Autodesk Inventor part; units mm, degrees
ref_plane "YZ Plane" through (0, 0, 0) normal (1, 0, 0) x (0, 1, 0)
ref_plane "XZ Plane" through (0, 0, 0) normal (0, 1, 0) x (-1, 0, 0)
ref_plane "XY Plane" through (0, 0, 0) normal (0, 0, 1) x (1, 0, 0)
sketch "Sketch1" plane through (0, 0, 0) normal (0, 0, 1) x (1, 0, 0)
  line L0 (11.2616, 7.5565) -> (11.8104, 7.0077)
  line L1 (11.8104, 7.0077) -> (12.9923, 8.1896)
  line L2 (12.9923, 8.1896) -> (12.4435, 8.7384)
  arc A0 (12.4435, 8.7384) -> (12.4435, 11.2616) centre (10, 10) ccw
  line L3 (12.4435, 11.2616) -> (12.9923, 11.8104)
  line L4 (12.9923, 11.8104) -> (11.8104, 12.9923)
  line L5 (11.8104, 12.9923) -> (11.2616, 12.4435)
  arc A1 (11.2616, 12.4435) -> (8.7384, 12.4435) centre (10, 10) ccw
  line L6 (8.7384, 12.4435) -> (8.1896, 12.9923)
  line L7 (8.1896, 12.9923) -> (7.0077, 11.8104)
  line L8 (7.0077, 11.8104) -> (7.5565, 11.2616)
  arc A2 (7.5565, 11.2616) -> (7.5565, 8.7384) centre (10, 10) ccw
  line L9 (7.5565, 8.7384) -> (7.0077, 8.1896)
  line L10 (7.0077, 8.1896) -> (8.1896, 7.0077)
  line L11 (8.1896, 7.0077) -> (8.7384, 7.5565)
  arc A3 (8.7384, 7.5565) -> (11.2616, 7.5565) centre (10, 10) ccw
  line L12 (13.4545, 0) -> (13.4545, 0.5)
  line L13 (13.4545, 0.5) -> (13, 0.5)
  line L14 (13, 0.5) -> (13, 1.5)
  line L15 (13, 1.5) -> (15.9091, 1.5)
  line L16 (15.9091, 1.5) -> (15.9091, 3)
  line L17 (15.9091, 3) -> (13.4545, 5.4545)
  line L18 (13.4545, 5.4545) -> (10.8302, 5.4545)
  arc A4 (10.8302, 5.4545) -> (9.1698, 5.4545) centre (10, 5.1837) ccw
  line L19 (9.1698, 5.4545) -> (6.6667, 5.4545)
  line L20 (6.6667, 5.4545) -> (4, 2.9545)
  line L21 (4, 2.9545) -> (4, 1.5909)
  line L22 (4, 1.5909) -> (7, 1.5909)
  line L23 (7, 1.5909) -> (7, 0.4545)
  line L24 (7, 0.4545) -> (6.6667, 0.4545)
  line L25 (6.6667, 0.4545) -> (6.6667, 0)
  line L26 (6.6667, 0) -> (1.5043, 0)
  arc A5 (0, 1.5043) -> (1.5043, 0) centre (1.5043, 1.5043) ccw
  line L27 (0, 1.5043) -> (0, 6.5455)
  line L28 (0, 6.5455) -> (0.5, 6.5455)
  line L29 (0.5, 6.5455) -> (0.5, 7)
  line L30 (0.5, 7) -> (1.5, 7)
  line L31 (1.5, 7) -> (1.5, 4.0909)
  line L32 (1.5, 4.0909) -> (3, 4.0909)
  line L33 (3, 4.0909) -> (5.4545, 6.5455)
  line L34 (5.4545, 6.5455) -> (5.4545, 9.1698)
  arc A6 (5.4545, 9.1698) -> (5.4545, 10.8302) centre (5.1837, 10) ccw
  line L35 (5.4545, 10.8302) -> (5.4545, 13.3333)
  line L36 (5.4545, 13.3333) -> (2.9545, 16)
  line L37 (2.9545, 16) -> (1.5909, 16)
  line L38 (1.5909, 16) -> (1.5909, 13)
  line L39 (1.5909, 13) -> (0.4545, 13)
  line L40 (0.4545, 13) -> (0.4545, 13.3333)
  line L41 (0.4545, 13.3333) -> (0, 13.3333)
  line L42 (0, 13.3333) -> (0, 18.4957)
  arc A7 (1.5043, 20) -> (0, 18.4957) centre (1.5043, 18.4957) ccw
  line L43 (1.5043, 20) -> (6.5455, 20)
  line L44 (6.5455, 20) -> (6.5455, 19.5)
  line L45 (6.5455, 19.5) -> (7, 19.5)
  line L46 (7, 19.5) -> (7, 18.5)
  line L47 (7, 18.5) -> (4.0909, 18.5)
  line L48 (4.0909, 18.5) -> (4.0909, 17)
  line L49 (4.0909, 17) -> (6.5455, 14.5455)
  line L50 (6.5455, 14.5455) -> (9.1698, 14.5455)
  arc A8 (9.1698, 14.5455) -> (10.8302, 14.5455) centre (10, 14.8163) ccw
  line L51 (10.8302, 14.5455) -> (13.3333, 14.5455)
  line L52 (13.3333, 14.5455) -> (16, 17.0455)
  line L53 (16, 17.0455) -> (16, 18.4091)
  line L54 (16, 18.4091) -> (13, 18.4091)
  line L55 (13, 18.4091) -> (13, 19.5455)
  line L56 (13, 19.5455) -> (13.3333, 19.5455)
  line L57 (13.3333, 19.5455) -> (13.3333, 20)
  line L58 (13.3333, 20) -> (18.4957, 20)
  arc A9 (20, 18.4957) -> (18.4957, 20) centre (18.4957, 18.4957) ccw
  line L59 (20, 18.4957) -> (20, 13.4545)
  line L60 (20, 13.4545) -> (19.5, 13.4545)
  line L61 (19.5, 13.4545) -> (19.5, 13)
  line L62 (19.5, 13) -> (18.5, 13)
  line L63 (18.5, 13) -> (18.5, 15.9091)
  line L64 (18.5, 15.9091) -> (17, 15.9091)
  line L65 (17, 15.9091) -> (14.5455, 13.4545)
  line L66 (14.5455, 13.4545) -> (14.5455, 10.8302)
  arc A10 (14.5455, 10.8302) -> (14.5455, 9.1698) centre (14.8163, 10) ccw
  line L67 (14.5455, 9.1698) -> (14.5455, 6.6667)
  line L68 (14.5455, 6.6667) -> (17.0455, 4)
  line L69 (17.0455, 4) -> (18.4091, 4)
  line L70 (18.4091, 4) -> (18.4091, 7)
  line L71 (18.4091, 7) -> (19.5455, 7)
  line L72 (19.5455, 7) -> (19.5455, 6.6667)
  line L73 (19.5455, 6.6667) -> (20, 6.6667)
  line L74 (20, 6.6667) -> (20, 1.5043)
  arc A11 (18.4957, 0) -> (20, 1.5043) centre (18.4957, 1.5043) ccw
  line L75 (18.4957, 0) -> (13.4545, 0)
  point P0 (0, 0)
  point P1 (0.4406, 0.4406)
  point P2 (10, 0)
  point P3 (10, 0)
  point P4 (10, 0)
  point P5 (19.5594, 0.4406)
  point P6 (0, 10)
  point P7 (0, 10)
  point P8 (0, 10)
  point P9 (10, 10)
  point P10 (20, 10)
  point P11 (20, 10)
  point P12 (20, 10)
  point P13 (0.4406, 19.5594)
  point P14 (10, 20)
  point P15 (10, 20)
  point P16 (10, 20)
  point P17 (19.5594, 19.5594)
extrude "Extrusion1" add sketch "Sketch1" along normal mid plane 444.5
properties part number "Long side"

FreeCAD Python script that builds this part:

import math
import FreeCAD as App
import Part
import Sketcher
from FreeCAD import Vector
Q = App.Units.Quantity

doc = App.newDocument("Part")
body = doc.addObject("PartDesign::Body", "Body")

# Sketch on XY plane
sketch1 = body.newObject("Sketcher::SketchObject", "Sketch")
sketch1.AttachmentSupport = (doc.getObject("XY_Plane"), [""])
sketch1.MapMode = "FlatFace"
sketch1.addGeometry([
    Part.LineSegment(Vector(13.45, 0.5, 0), Vector(13.45, 0, 0)),  # 0
    Part.LineSegment(Vector(13.45, 0, 0), Vector(18.5, 0, 0)),  # 1
    Part.ArcOfCircle(Part.Circle(Vector(18.5, 1.5, 0), Vector(0, 0, 1), 1.5), math.radians(-90), math.radians(0)),  # 2
    Part.LineSegment(Vector(20, 1.5, 0), Vector(20, 6.67, 0)),  # 3
    Part.LineSegment(Vector(20, 6.67, 0), Vector(19.55, 6.67, 0)),  # 4
    Part.LineSegment(Vector(19.55, 6.67, 0), Vector(19.55, 7, 0)),  # 5
    Part.LineSegment(Vector(19.55, 7, 0), Vector(18.41, 7, 0)),  # 6
    Part.LineSegment(Vector(18.41, 7, 0), Vector(18.41, 4, 0)),  # 7
    Part.LineSegment(Vector(18.41, 4, 0), Vector(17.05, 4, 0)),  # 8
    Part.LineSegment(Vector(17.05, 4, 0), Vector(14.55, 6.67, 0)),  # 9
    Part.LineSegment(Vector(14.55, 6.67, 0), Vector(14.55, 9.17, 0)),  # 10
    Part.ArcOfCircle(Part.Circle(Vector(14.82, 10, 0), Vector(0, 0, 1), 0.87), math.radians(108), math.radians(252)),  # 11
    Part.LineSegment(Vector(14.55, 10.83, 0), Vector(14.55, 13.45, 0)),  # 12
    Part.LineSegment(Vector(14.55, 13.45, 0), Vector(17, 15.91, 0)),  # 13
    Part.LineSegment(Vector(17, 15.91, 0), Vector(18.5, 15.91, 0)),  # 14
    Part.LineSegment(Vector(18.5, 15.91, 0), Vector(18.5, 13, 0)),  # 15
    Part.LineSegment(Vector(18.5, 13, 0), Vector(19.5, 13, 0)),  # 16
    Part.LineSegment(Vector(19.5, 13, 0), Vector(19.5, 13.45, 0)),  # 17
    Part.LineSegment(Vector(19.5, 13.45, 0), Vector(20, 13.45, 0)),  # 18
    Part.LineSegment(Vector(20, 13.45, 0), Vector(20, 18.5, 0)),  # 19
    Part.ArcOfCircle(Part.Circle(Vector(18.5, 18.5, 0), Vector(0, 0, 1), 1.5), math.radians(0), math.radians(90)),  # 20
    Part.LineSegment(Vector(18.5, 20, 0), Vector(13.33, 20, 0)),  # 21
    Part.LineSegment(Vector(13.33, 20, 0), Vector(13.33, 19.55, 0)),  # 22
    Part.LineSegment(Vector(13.33, 19.55, 0), Vector(13, 19.55, 0)),  # 23
    Part.LineSegment(Vector(13, 19.55, 0), Vector(13, 18.41, 0)),  # 24
    Part.LineSegment(Vector(13, 18.41, 0), Vector(16, 18.41, 0)),  # 25
    Part.LineSegment(Vector(16, 18.41, 0), Vector(16, 17.05, 0)),  # 26
    Part.LineSegment(Vector(16, 17.05, 0), Vector(13.33, 14.55, 0)),  # 27
    Part.LineSegment(Vector(13.33, 14.55, 0), Vector(10.83, 14.55, 0)),  # 28
    Part.ArcOfCircle(Part.Circle(Vector(10, 14.82, 0), Vector(0, 0, 1), 0.87), math.radians(-162), math.radians(-18)),  # 29
    Part.LineSegment(Vector(9.17, 14.55, 0), Vector(6.55, 14.55, 0)),  # 30
    Part.LineSegment(Vector(6.55, 14.55, 0), Vector(4.09, 17, 0)),  # 31
    Part.LineSegment(Vector(4.09, 17, 0), Vector(4.09, 18.5, 0)),  # 32
    Part.LineSegment(Vector(4.09, 18.5, 0), Vector(7, 18.5, 0)),  # 33
    Part.LineSegment(Vector(7, 18.5, 0), Vector(7, 19.5, 0)),  # 34
    Part.LineSegment(Vector(7, 19.5, 0), Vector(6.55, 19.5, 0)),  # 35
    Part.LineSegment(Vector(6.55, 19.5, 0), Vector(6.55, 20, 0)),  # 36
    Part.LineSegment(Vector(6.55, 20, 0), Vector(1.5, 20, 0)),  # 37
    Part.ArcOfCircle(Part.Circle(Vector(1.5, 18.5, 0), Vector(0, 0, 1), 1.5), math.radians(90), math.radians(180)),  # 38
    Part.LineSegment(Vector(0, 18.5, 0), Vector(0, 13.33, 0)),  # 39
    Part.LineSegment(Vector(0, 13.33, 0), Vector(0.45, 13.33, 0)),  # 40
    Part.LineSegment(Vector(0.45, 13.33, 0), Vector(0.45, 13, 0)),  # 41
    Part.LineSegment(Vector(0.45, 13, 0), Vector(1.59, 13, 0)),  # 42
    Part.LineSegment(Vector(1.59, 13, 0), Vector(1.59, 16, 0)),  # 43
    Part.LineSegment(Vector(1.59, 16, 0), Vector(2.95, 16, 0)),  # 44
    Part.LineSegment(Vector(2.95, 16, 0), Vector(5.45, 13.33, 0)),  # 45
    Part.LineSegment(Vector(5.45, 13.33, 0), Vector(5.45, 10.83, 0)),  # 46
    Part.ArcOfCircle(Part.Circle(Vector(5.18, 10, 0), Vector(0, 0, 1), 0.87), math.radians(-72), math.radians(72)),  # 47
    Part.LineSegment(Vector(5.45, 9.17, 0), Vector(5.45, 6.55, 0)),  # 48
    Part.LineSegment(Vector(5.45, 6.55, 0), Vector(3, 4.09, 0)),  # 49
    Part.LineSegment(Vector(3, 4.09, 0), Vector(1.5, 4.09, 0)),  # 50
    Part.LineSegment(Vector(1.5, 4.09, 0), Vector(1.5, 7, 0)),  # 51
    Part.LineSegment(Vector(1.5, 7, 0), Vector(0.5, 7, 0)),  # 52
    Part.LineSegment(Vector(0.5, 7, 0), Vector(0.5, 6.55, 0)),  # 53
    Part.LineSegment(Vector(0.5, 6.55, 0), Vector(0, 6.55, 0)),  # 54
    Part.LineSegment(Vector(0, 6.55, 0), Vector(0, 1.5, 0)),  # 55
    Part.ArcOfCircle(Part.Circle(Vector(1.5, 1.5, 0), Vector(0, 0, 1), 1.5), math.radians(180), math.radians(270)),  # 56
    Part.LineSegment(Vector(1.5, 0, 0), Vector(6.67, 0, 0)),  # 57
    Part.LineSegment(Vector(6.67, 0, 0), Vector(6.67, 0.45, 0)),  # 58
    Part.LineSegment(Vector(6.67, 0.45, 0), Vector(7, 0.45, 0)),  # 59
    Part.LineSegment(Vector(7, 0.45, 0), Vector(7, 1.59, 0)),  # 60
    Part.LineSegment(Vector(7, 1.59, 0), Vector(4, 1.59, 0)),  # 61
    Part.LineSegment(Vector(4, 1.59, 0), Vector(4, 2.95, 0)),  # 62
    Part.LineSegment(Vector(4, 2.95, 0), Vector(6.67, 5.45, 0)),  # 63
    Part.LineSegment(Vector(6.67, 5.45, 0), Vector(9.17, 5.45, 0)),  # 64
    Part.ArcOfCircle(Part.Circle(Vector(10, 5.18, 0), Vector(0, 0, 1), 0.87), math.radians(18), math.radians(162)),  # 65
    Part.LineSegment(Vector(10.83, 5.45, 0), Vector(13.45, 5.45, 0)),  # 66
    Part.LineSegment(Vector(13.45, 5.45, 0), Vector(15.91, 3, 0)),  # 67
    Part.LineSegment(Vector(15.91, 3, 0), Vector(15.91, 1.5, 0)),  # 68
    Part.LineSegment(Vector(15.91, 1.5, 0), Vector(13, 1.5, 0)),  # 69
    Part.LineSegment(Vector(13, 1.5, 0), Vector(13, 0.5, 0)),  # 70
    Part.LineSegment(Vector(13, 0.5, 0), Vector(13.45, 0.5, 0)),  # 71
    Part.LineSegment(Vector(11.81, 7.01, 0), Vector(11.26, 7.56, 0)),  # 72
    Part.ArcOfCircle(Part.Circle(Vector(10, 10, 0), Vector(0, 0, 1), 2.75), math.radians(-117), math.radians(-63)),  # 73
    Part.LineSegment(Vector(8.74, 7.56, 0), Vector(8.19, 7.01, 0)),  # 74
    Part.LineSegment(Vector(8.19, 7.01, 0), Vector(7.01, 8.19, 0)),  # 75
    Part.LineSegment(Vector(7.01, 8.19, 0), Vector(7.56, 8.74, 0)),  # 76
    Part.ArcOfCircle(Part.Circle(Vector(10, 10, 0), Vector(0, 0, 1), 2.75), math.radians(153), math.radians(207)),  # 77
    Part.LineSegment(Vector(7.56, 11.26, 0), Vector(7.01, 11.81, 0)),  # 78
    Part.LineSegment(Vector(7.01, 11.81, 0), Vector(8.19, 12.99, 0)),  # 79
    Part.LineSegment(Vector(8.19, 12.99, 0), Vector(8.74, 12.44, 0)),  # 80
    Part.ArcOfCircle(Part.Circle(Vector(10, 10, 0), Vector(0, 0, 1), 2.75), math.radians(63), math.radians(117)),  # 81
    Part.LineSegment(Vector(11.26, 12.44, 0), Vector(11.81, 12.99, 0)),  # 82
    Part.LineSegment(Vector(11.81, 12.99, 0), Vector(12.99, 11.81, 0)),  # 83
    Part.LineSegment(Vector(12.99, 11.81, 0), Vector(12.44, 11.26, 0)),  # 84
    Part.ArcOfCircle(Part.Circle(Vector(10, 10, 0), Vector(0, 0, 1), 2.75), math.radians(-27), math.radians(27)),  # 85
    Part.LineSegment(Vector(12.44, 8.74, 0), Vector(12.99, 8.19, 0)),  # 86
    Part.LineSegment(Vector(12.99, 8.19, 0), Vector(11.81, 7.01, 0)),  # 87
], False)
sketch1.addConstraint([
    Sketcher.Constraint("Coincident", 0, 2, 1, 1),
    Sketcher.Constraint("Tangent", 1, 2, 2, 1),
    Sketcher.Constraint("Tangent", 2, 2, 3, 1),
    Sketcher.Constraint("Coincident", 3, 2, 4, 1),
    Sketcher.Constraint("Coincident", 4, 2, 5, 1),
    Sketcher.Constraint("Coincident", 5, 2, 6, 1),
    Sketcher.Constraint("Coincident", 6, 2, 7, 1),
    Sketcher.Constraint("Coincident", 7, 2, 8, 1),
    Sketcher.Constraint("Coincident", 8, 2, 9, 1),
    Sketcher.Constraint("Coincident", 9, 2, 10, 1),
    Sketcher.Constraint("Coincident", 10, 2, 11, 2),
    Sketcher.Constraint("Coincident", 11, 1, 12, 1),
    Sketcher.Constraint("Coincident", 12, 2, 13, 1),
    Sketcher.Constraint("Coincident", 13, 2, 14, 1),
    Sketcher.Constraint("Coincident", 14, 2, 15, 1),
    Sketcher.Constraint("Coincident", 15, 2, 16, 1),
    Sketcher.Constraint("Coincident", 16, 2, 17, 1),
    Sketcher.Constraint("Coincident", 17, 2, 18, 1),
    Sketcher.Constraint("Coincident", 18, 2, 19, 1),
    Sketcher.Constraint("Tangent", 19, 2, 20, 1),
    Sketcher.Constraint("Tangent", 20, 2, 21, 1),
    Sketcher.Constraint("Coincident", 21, 2, 22, 1),
    Sketcher.Constraint("Coincident", 22, 2, 23, 1),
    Sketcher.Constraint("Coincident", 23, 2, 24, 1),
    Sketcher.Constraint("Coincident", 24, 2, 25, 1),
    Sketcher.Constraint("Coincident", 25, 2, 26, 1),
    Sketcher.Constraint("Coincident", 26, 2, 27, 1),
    Sketcher.Constraint("Coincident", 27, 2, 28, 1),
    Sketcher.Constraint("Coincident", 28, 2, 29, 2),
    Sketcher.Constraint("Coincident", 29, 1, 30, 1),
    Sketcher.Constraint("Coincident", 30, 2, 31, 1),
    Sketcher.Constraint("Coincident", 31, 2, 32, 1),
    Sketcher.Constraint("Coincident", 32, 2, 33, 1),
    Sketcher.Constraint("Coincident", 33, 2, 34, 1),
    Sketcher.Constraint("Coincident", 34, 2, 35, 1),
    Sketcher.Constraint("Coincident", 35, 2, 36, 1),
    Sketcher.Constraint("Coincident", 36, 2, 37, 1),
    Sketcher.Constraint("Tangent", 37, 2, 38, 1),
    Sketcher.Constraint("Tangent", 38, 2, 39, 1),
    Sketcher.Constraint("Coincident", 39, 2, 40, 1),
    Sketcher.Constraint("Coincident", 40, 2, 41, 1),
    Sketcher.Constraint("Coincident", 41, 2, 42, 1),
    Sketcher.Constraint("Coincident", 42, 2, 43, 1),
    Sketcher.Constraint("Coincident", 43, 2, 44, 1),
    Sketcher.Constraint("Coincident", 44, 2, 45, 1),
    Sketcher.Constraint("Coincident", 45, 2, 46, 1),
    Sketcher.Constraint("Coincident", 46, 2, 47, 2),
    Sketcher.Constraint("Coincident", 47, 1, 48, 1),
    Sketcher.Constraint("Coincident", 48, 2, 49, 1),
    Sketcher.Constraint("Coincident", 49, 2, 50, 1),
    Sketcher.Constraint("Coincident", 50, 2, 51, 1),
    Sketcher.Constraint("Coincident", 51, 2, 52, 1),
    Sketcher.Constraint("Coincident", 52, 2, 53, 1),
    Sketcher.Constraint("Coincident", 53, 2, 54, 1),
    Sketcher.Constraint("Coincident", 54, 2, 55, 1),
    Sketcher.Constraint("Tangent", 55, 2, 56, 1),
    Sketcher.Constraint("Tangent", 56, 2, 57, 1),
    Sketcher.Constraint("Coincident", 57, 2, 58, 1),
    Sketcher.Constraint("Coincident", 58, 2, 59, 1),
    Sketcher.Constraint("Coincident", 59, 2, 60, 1),
    Sketcher.Constraint("Coincident", 60, 2, 61, 1),
    Sketcher.Constraint("Coincident", 61, 2, 62, 1),
    Sketcher.Constraint("Coincident", 62, 2, 63, 1),
    Sketcher.Constraint("Coincident", 63, 2, 64, 1),
    Sketcher.Constraint("Coincident", 64, 2, 65, 2),
    Sketcher.Constraint("Coincident", 65, 1, 66, 1),
    Sketcher.Constraint("Coincident", 66, 2, 67, 1),
    Sketcher.Constraint("Coincident", 67, 2, 68, 1),
    Sketcher.Constraint("Coincident", 68, 2, 69, 1),
    Sketcher.Constraint("Coincident", 69, 2, 70, 1),
    Sketcher.Constraint("Coincident", 70, 2, 71, 1),
    Sketcher.Constraint("Coincident", 71, 2, 0, 1),
    Sketcher.Constraint("Coincident", 72, 2, 73, 2),
    Sketcher.Constraint("Coincident", 73, 1, 74, 1),
    Sketcher.Constraint("Coincident", 74, 2, 75, 1),
    Sketcher.Constraint("Coincident", 75, 2, 76, 1),
    Sketcher.Constraint("Coincident", 76, 2, 77, 2),
    Sketcher.Constraint("Coincident", 77, 1, 78, 1),
    Sketcher.Constraint("Coincident", 78, 2, 79, 1),
    Sketcher.Constraint("Coincident", 79, 2, 80, 1),
    Sketcher.Constraint("Coincident", 80, 2, 81, 2),
    Sketcher.Constraint("Coincident", 81, 1, 82, 1),
    Sketcher.Constraint("Coincident", 82, 2, 83, 1),
    Sketcher.Constraint("Coincident", 83, 2, 84, 1),
    Sketcher.Constraint("Coincident", 84, 2, 85, 2),
    Sketcher.Constraint("Coincident", 85, 1, 86, 1),
    Sketcher.Constraint("Coincident", 86, 2, 87, 1),
    Sketcher.Constraint("Coincident", 87, 2, 72, 1),
    Sketcher.Constraint("Vertical", 0),
    Sketcher.Constraint("Horizontal", 1),
    Sketcher.Constraint("Vertical", 3),
    Sketcher.Constraint("Horizontal", 4),
    Sketcher.Constraint("Vertical", 5),
    Sketcher.Constraint("Horizontal", 6),
    Sketcher.Constraint("Vertical", 7),
    Sketcher.Constraint("Horizontal", 8),
    Sketcher.Constraint("Vertical", 10),
    Sketcher.Constraint("Vertical", 12),
    Sketcher.Constraint("Horizontal", 14),
    Sketcher.Constraint("Vertical", 15),
    Sketcher.Constraint("Horizontal", 16),
    Sketcher.Constraint("Vertical", 17),
    Sketcher.Constraint("Horizontal", 18),
    Sketcher.Constraint("Vertical", 19),
    Sketcher.Constraint("Horizontal", 21),
    Sketcher.Constraint("Vertical", 22),
    Sketcher.Constraint("Horizontal", 23),
    Sketcher.Constraint("Vertical", 24),
    Sketcher.Constraint("Horizontal", 25),
    Sketcher.Constraint("Vertical", 26),
    Sketcher.Constraint("Horizontal", 28),
    Sketcher.Constraint("Horizontal", 30),
    Sketcher.Constraint("Vertical", 32),
    Sketcher.Constraint("Horizontal", 33),
    Sketcher.Constraint("Vertical", 34),
    Sketcher.Constraint("Horizontal", 35),
    Sketcher.Constraint("Vertical", 36),
    Sketcher.Constraint("Horizontal", 37),
    Sketcher.Constraint("Vertical", 39),
    Sketcher.Constraint("Horizontal", 40),
    Sketcher.Constraint("Vertical", 41),
    Sketcher.Constraint("Horizontal", 42),
    Sketcher.Constraint("Vertical", 43),
    Sketcher.Constraint("Horizontal", 44),
    Sketcher.Constraint("Vertical", 46),
    Sketcher.Constraint("Vertical", 48),
    Sketcher.Constraint("Horizontal", 50),
    Sketcher.Constraint("Vertical", 51),
    Sketcher.Constraint("Horizontal", 52),
    Sketcher.Constraint("Vertical", 53),
    Sketcher.Constraint("Horizontal", 54),
    Sketcher.Constraint("Vertical", 55),
    Sketcher.Constraint("Horizontal", 57),
    Sketcher.Constraint("Vertical", 58),
    Sketcher.Constraint("Horizontal", 59),
    Sketcher.Constraint("Vertical", 60),
    Sketcher.Constraint("Horizontal", 61),
    Sketcher.Constraint("Vertical", 62),
    Sketcher.Constraint("Horizontal", 64),
    Sketcher.Constraint("Horizontal", 66),
    Sketcher.Constraint("Vertical", 68),
    Sketcher.Constraint("Horizontal", 69),
    Sketcher.Constraint("Vertical", 70),
    Sketcher.Constraint("Horizontal", 71),
    Sketcher.Constraint("Coincident", 77, 3, 73, 3),
    Sketcher.Constraint("Coincident", 81, 3, 73, 3),
    Sketcher.Constraint("Coincident", 85, 3, 73, 3),
    Sketcher.Constraint("Equal", 2, 20),
    Sketcher.Constraint("Equal", 11, 29),
    Sketcher.Constraint("Equal", 20, 38),
    Sketcher.Constraint("Equal", 29, 47),
    Sketcher.Constraint("Equal", 38, 56),
    Sketcher.Constraint("Equal", 47, 65),
    Sketcher.Constraint("Equal", 73, 77),
    Sketcher.Constraint("Equal", 77, 81),
    Sketcher.Constraint("Equal", 81, 85),
    Sketcher.Constraint("PointOnObject", 0, 2, -1),
    Sketcher.Constraint("PointOnObject", 38, 2, -2),
    Sketcher.Constraint("PointOnObject", 54, 2, -2),
    Sketcher.Constraint("PointOnObject", 56, 2, -1),
    Sketcher.Constraint("Perpendicular", 9, 27),
    Sketcher.Constraint("Perpendicular", 13, 31),
    Sketcher.Constraint("Perpendicular", 27, 45),
    Sketcher.Constraint("Perpendicular", 31, 49),
    Sketcher.Constraint("Perpendicular", 45, 63),
    Sketcher.Constraint("Perpendicular", 49, 67),
    Sketcher.Constraint("Parallel", 67, 72),
    Sketcher.Constraint("Perpendicular", 72, 74),
    Sketcher.Constraint("Perpendicular", 74, 75),
    Sketcher.Constraint("Perpendicular", 75, 76),
    Sketcher.Constraint("Perpendicular", 76, 78),
    Sketcher.Constraint("Perpendicular", 78, 79),
    Sketcher.Constraint("Perpendicular", 79, 80),
    Sketcher.Constraint("Perpendicular", 80, 82),
    Sketcher.Constraint("Perpendicular", 82, 83),
    Sketcher.Constraint("Perpendicular", 83, 84),
    Sketcher.Constraint("Perpendicular", 84, 86),
    Sketcher.Constraint("Perpendicular", 86, 87),
    Sketcher.Constraint("Horizontal", 20, 3, 38, 3),
    Sketcher.Constraint("Horizontal", 11, 3, 47, 3),
    Sketcher.Constraint("Horizontal", 47, 3, 73, 3),
    Sketcher.Constraint("Horizontal", 4, 2, 9, 2),
    Sketcher.Constraint("Horizontal", 12, 2, 17, 2),
    Sketcher.Constraint("Horizontal", 28, 2, 29, 1),
    Sketcher.Constraint("Horizontal", 16, 2, 41, 2),
    Sketcher.Constraint("Horizontal", 40, 2, 45, 2),
    Sketcher.Constraint("Horizontal", 11, 1, 46, 2),
    Sketcher.Constraint("Horizontal", 10, 2, 47, 1),
    Sketcher.Constraint("Horizontal", 6, 2, 51, 2),
    Sketcher.Constraint("Horizontal", 48, 2, 53, 2),
    Sketcher.Constraint("Horizontal", 64, 2, 65, 1),
    Sketcher.Constraint("Horizontal", 72, 2, 73, 1),
    Sketcher.Constraint("Horizontal", 80, 2, 81, 1),
    Sketcher.Constraint("Horizontal", 79, 2, 82, 2),
    Sketcher.Constraint("Horizontal", 78, 2, 83, 2),
    Sketcher.Constraint("Horizontal", 77, 1, 84, 2),
    Sketcher.Constraint("Horizontal", 76, 2, 85, 1),
    Sketcher.Constraint("Horizontal", 75, 2, 86, 2),
    Sketcher.Constraint("Vertical", 2, 3, 20, 3),
    Sketcher.Constraint("Vertical", 29, 3, 65, 3),
    Sketcher.Constraint("Vertical", 65, 3, 73, 3),
    Sketcher.Constraint("Vertical", 10, 2, 11, 1),
    Sketcher.Constraint("Vertical", 22, 2, 27, 2),
    Sketcher.Constraint("Vertical", 30, 2, 35, 2),
    Sketcher.Constraint("Vertical", 34, 2, 59, 2),
    Sketcher.Constraint("Vertical", 58, 2, 63, 2),
    Sketcher.Constraint("Vertical", 29, 1, 64, 2),
    Sketcher.Constraint("Vertical", 0, 2, 66, 2),
    Sketcher.Constraint("Vertical", 24, 2, 69, 2),
    Sketcher.Constraint("Vertical", 76, 2, 77, 1),
    Sketcher.Constraint("Vertical", 75, 2, 78, 2),
    Sketcher.Constraint("Vertical", 74, 2, 79, 2),
    Sketcher.Constraint("Equal", 4, 35),
    Sketcher.Constraint("Equal", 1, 37),
    Sketcher.Constraint("Equal", 35, 40),
    Sketcher.Constraint("Equal", 6, 42),
    Sketcher.Constraint("Equal", 8, 44),
    Sketcher.Constraint("Equal", 14, 50),
    Sketcher.Constraint("Equal", 16, 52),
    Sketcher.Constraint("Equal", 18, 54),
    Sketcher.Constraint("Equal", 21, 57),
    Sketcher.Constraint("Equal", 23, 59),
    Sketcher.Constraint("Equal", 25, 61),
    Sketcher.Constraint("Equal", 28, 64),
    Sketcher.Constraint("Equal", 33, 69),
    Sketcher.Constraint("Equal", 54, 0),
    Sketcher.Constraint("Equal", 57, 3),
    Sketcher.Constraint("Equal", 59, 5),
    Sketcher.Constraint("Equal", 61, 7),
    Sketcher.Constraint("Equal", 64, 10),
    Sketcher.Constraint("Equal", 66, 12),
    Sketcher.Constraint("Equal", 69, 15),
    Sketcher.Constraint("Equal", 71, 17),
    Sketcher.Constraint("Equal", 37, 19),
    Sketcher.Constraint("Equal", 17, 22),
    Sketcher.Constraint("Equal", 42, 24),
    Sketcher.Constraint("Equal", 44, 26),
    Sketcher.Constraint("Equal", 50, 32),
    Sketcher.Constraint("Equal", 52, 34),
    Sketcher.Constraint("Equal", 3, 39),
    Sketcher.Constraint("Equal", 7, 43),
    Sketcher.Constraint("Equal", 12, 48),
    Sketcher.Constraint("Equal", 53, 58),
    Sketcher.Constraint("Equal", 24, 60),
    Sketcher.Constraint("Equal", 26, 62),
    Sketcher.Constraint("Equal", 32, 68),
    Sketcher.Constraint("Equal", 74, 76),
    Sketcher.Constraint("DistanceX", 16, 1, 16, 2, Q("1 mm")),
    Sketcher.Constraint("DistanceX", 25, 1, 25, 2, Q("3 mm")),
    Sketcher.Constraint("Radius", 73, Q("2.75 mm")),
    Sketcher.Constraint("DistanceX", 14, 1, 14, 2, Q("1.5 mm")),
    Sketcher.Constraint("DistanceX", 18, 1, 18, 2, Q("0.5 mm")),
    Sketcher.Constraint("DistanceY", -1, 1, 11, 3, Q("10 mm")),
    Sketcher.Constraint("DistanceX", -1, 1, 29, 3, Q("10 mm")),
    Sketcher.Constraint("DistanceY", -1, 1, 5, 2, Q("7 mm")),
    Sketcher.Constraint("Radius", 2, Q("1.5043 mm")),
    Sketcher.Constraint("Radius", 11, Q("0.8732 mm")),
    Sketcher.Constraint("DistanceX", 28, 2, 28, 1, Q("2.503 mm")),
    Sketcher.Constraint("DistanceX", 33, 1, 33, 2, Q("2.909 mm")),
    Sketcher.Constraint("DistanceX", 1, 1, 1, 2, Q("5.0412 mm")),
    Sketcher.Constraint("DistanceX", 6, 2, 6, 1, Q("1.1364 mm")),
    Sketcher.Constraint("DistanceX", 8, 2, 8, 1, Q("1.3636 mm")),
    Sketcher.Constraint("DistanceX", 21, 2, 21, 1, Q("5.1624 mm")),
    Sketcher.Constraint("Distance", 72, Q("0.7761 mm")),
    Sketcher.Constraint("Distance", 75, Q("1.6715 mm")),
])
pad1 = body.newObject("PartDesign::Pad", "Pad")
pad1.Profile = sketch1
pad1.Length = 444.5
pad1.Midplane = True

doc.recompute()
